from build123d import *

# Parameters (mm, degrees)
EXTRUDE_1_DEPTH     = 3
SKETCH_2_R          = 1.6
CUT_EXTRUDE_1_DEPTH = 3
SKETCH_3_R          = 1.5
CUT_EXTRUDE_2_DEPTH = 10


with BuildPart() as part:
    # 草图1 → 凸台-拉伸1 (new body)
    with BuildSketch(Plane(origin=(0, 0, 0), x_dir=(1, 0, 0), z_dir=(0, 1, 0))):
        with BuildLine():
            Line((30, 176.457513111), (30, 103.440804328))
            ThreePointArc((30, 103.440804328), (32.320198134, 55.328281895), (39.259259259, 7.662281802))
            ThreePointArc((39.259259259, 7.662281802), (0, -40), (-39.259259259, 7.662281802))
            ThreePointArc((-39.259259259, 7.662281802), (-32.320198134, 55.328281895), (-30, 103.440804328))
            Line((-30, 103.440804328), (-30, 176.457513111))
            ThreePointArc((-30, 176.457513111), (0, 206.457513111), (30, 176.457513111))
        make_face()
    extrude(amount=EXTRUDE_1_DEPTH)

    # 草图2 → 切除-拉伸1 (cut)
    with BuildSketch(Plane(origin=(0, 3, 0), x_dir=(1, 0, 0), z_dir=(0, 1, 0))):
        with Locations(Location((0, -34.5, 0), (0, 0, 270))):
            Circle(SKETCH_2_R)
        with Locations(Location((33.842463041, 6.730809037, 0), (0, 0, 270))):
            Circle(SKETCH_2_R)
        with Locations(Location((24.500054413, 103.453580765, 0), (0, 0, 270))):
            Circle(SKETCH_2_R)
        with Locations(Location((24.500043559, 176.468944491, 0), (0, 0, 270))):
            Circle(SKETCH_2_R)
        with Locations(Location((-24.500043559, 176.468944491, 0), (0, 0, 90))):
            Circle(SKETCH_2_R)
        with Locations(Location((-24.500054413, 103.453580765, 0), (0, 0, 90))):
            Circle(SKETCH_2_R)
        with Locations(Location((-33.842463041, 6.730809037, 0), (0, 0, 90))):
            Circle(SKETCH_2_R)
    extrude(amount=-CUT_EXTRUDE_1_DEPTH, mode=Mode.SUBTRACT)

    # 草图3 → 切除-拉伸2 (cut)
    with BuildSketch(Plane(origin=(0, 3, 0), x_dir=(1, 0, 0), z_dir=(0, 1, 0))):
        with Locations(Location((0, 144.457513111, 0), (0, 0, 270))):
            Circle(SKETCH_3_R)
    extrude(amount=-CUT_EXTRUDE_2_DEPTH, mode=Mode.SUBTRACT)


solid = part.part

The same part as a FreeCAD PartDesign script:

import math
import FreeCAD as App
import Part
import Sketcher

doc = App.newDocument("Part")
body = doc.addObject("PartDesign::Body", "Body")

# Sketch on XZ plane
sketch1 = body.newObject("Sketcher::SketchObject", "Sketch")
sketch1.AttachmentSupport = (doc.getObject("XZ_Plane"), [""])
sketch1.MapMode = "FlatFace"
sketch1.addGeometry([
    Part.LineSegment(App.Vector(30, -103, 0), App.Vector(30, -176, 0)),  # 0
    Part.ArcOfCircle(Part.Circle(App.Vector(0, -176, 0), App.Vector(0, 0, 1), 30), math.radians(180), math.radians(360)),  # 1
    Part.LineSegment(App.Vector(-30, -176, 0), App.Vector(-30, -103, 0)),  # 2
    Part.ArcOfCircle(Part.Circle(App.Vector(-530, -103, 0), App.Vector(0, 0, 1), 500), math.radians(0), math.radians(11.04)),  # 3
    Part.ArcOfCircle(Part.Circle(App.Vector(0, 0, 0), App.Vector(0, 0, 1), 40), math.radians(-11), math.radians(191)),  # 4
    Part.ArcOfCircle(Part.Circle(App.Vector(530, -103, 0), App.Vector(0, 0, 1), 500), math.radians(168.96), math.radians(180)),  # 5
], False)
sketch1.addConstraint([
    Sketcher.Constraint("Tangent", 0, 2, 1, 2),
    Sketcher.Constraint("Tangent", 1, 1, 2, 1),
    Sketcher.Constraint("Tangent", 2, 2, 3, 1),
    Sketcher.Constraint("Tangent", 3, 2, 4, 2),
    Sketcher.Constraint("Tangent", 4, 1, 5, 1),
    Sketcher.Constraint("Tangent", 5, 2, 0, 1),
    Sketcher.Constraint("Vertical", 0),
    Sketcher.Constraint("Vertical", 2),
    Sketcher.Constraint("Coincident", 4, 3, -1, 1),
    Sketcher.Constraint("Equal", 3, 5),
    Sketcher.Constraint("PointOnObject", 1, 3, -2),
    Sketcher.Constraint("Radius", 1, 30.0),
    Sketcher.Constraint("Radius", 3, 500.0),
    Sketcher.Constraint("Radius", 4, 40.0),
    Sketcher.Constraint("DistanceY", 0, 2, 0, 1, 73.016709),
])
pad1 = body.newObject("PartDesign::Pad", "Pad")
pad1.Profile = sketch1
pad1.Length = 3
pad1.Reversed = True

# Sketch on XZ plane
sketch2 = body.newObject("Sketcher::SketchObject", "Sketch001")
sketch2.AttachmentSupport = (doc.getObject("XZ_Plane"), [""])
sketch2.MapMode = "FlatFace"
sketch2.AttachmentOffset = App.Placement(App.Vector(0, 0, -3), App.Rotation())
sketch2.addGeometry([
    Part.Circle(App.Vector(0, 34.5, 0), App.Vector(0, 0, 1), 1.6),  # 0
    Part.Circle(App.Vector(33.8, -6.7, 0), App.Vector(0, 0, 1), 1.6),  # 1
    Part.Circle(App.Vector(24.5, -103.5, 0), App.Vector(0, 0, 1), 1.6),  # 2
    Part.Circle(App.Vector(24.5, -176.5, 0), App.Vector(0, 0, 1), 1.6),  # 3
    Part.Circle(App.Vector(-24.5, -176.5, 0), App.Vector(0, 0, 1), 1.6),  # 4
    Part.Circle(App.Vector(-24.5, -103.5, 0), App.Vector(0, 0, 1), 1.6),  # 5
    Part.Circle(App.Vector(-33.8, -6.7, 0), App.Vector(0, 0, 1), 1.6),  # 6
], False)
sketch2.addConstraint([
    Sketcher.Constraint("Equal", 0, 1),
    Sketcher.Constraint("Equal", 1, 2),
    Sketcher.Constraint("Equal", 2, 3),
    Sketcher.Constraint("Equal", 3, 4),
    Sketcher.Constraint("Equal", 4, 5),
    Sketcher.Constraint("Equal", 5, 6),
    Sketcher.Constraint("Symmetric", 3, 3, 4, 3, -2),
    Sketcher.Constraint("Symmetric", 2, 3, 5, 3, -2),
    Sketcher.Constraint("Symmetric", 1, 3, 6, 3, -2),
    Sketcher.Constraint("PointOnObject", 0, 3, -2),
    Sketcher.Constraint("Diameter", 0, 3.2),
    Sketcher.Constraint("DistanceY", -1, 1, 0, 3, 34.5),
    Sketcher.Constraint("DistanceY", 1, 3, -1, 1, 6.730809),
    Sketcher.Constraint("DistanceY", 2, 3, -1, 1, 103.453581),
    Sketcher.Constraint("DistanceX", 2, 3, 1, 3, 9.342409),
    Sketcher.Constraint("DistanceX", 3, 3, 1, 3, 9.342419),
    Sketcher.Constraint("DistanceX", 5, 3, 2, 3, 49.000109),
    Sketcher.Constraint("DistanceY", 3, 3, -1, 1, 176.468944),
])
pocket1 = body.newObject("PartDesign::Pocket", "Pocket")
pocket1.Profile = sketch2
pocket1.Length = 3
pocket1.Reversed = True

# Sketch on XZ plane
sketch3 = body.newObject("Sketcher::SketchObject", "Sketch002")
sketch3.AttachmentSupport = (doc.getObject("XZ_Plane"), [""])
sketch3.MapMode = "FlatFace"
sketch3.AttachmentOffset = App.Placement(App.Vector(0, 0, -3), App.Rotation())
sketch3.addGeometry(Part.Circle(App.Vector(0, -144.5, 0), App.Vector(0, 0, 1), 1.5), False)
sketch3.addConstraint([
    Sketcher.Constraint("PointOnObject", 0, 3, -2),
    Sketcher.Constraint("Diameter", 0, 3.0),
    Sketcher.Constraint("DistanceY", 0, 3, -1, 1, 144.457513),
])
pocket2 = body.newObject("PartDesign::Pocket", "Pocket001")
pocket2.Profile = sketch3
pocket2.Length = 10
pocket2.Reversed = True

doc.recompute()
